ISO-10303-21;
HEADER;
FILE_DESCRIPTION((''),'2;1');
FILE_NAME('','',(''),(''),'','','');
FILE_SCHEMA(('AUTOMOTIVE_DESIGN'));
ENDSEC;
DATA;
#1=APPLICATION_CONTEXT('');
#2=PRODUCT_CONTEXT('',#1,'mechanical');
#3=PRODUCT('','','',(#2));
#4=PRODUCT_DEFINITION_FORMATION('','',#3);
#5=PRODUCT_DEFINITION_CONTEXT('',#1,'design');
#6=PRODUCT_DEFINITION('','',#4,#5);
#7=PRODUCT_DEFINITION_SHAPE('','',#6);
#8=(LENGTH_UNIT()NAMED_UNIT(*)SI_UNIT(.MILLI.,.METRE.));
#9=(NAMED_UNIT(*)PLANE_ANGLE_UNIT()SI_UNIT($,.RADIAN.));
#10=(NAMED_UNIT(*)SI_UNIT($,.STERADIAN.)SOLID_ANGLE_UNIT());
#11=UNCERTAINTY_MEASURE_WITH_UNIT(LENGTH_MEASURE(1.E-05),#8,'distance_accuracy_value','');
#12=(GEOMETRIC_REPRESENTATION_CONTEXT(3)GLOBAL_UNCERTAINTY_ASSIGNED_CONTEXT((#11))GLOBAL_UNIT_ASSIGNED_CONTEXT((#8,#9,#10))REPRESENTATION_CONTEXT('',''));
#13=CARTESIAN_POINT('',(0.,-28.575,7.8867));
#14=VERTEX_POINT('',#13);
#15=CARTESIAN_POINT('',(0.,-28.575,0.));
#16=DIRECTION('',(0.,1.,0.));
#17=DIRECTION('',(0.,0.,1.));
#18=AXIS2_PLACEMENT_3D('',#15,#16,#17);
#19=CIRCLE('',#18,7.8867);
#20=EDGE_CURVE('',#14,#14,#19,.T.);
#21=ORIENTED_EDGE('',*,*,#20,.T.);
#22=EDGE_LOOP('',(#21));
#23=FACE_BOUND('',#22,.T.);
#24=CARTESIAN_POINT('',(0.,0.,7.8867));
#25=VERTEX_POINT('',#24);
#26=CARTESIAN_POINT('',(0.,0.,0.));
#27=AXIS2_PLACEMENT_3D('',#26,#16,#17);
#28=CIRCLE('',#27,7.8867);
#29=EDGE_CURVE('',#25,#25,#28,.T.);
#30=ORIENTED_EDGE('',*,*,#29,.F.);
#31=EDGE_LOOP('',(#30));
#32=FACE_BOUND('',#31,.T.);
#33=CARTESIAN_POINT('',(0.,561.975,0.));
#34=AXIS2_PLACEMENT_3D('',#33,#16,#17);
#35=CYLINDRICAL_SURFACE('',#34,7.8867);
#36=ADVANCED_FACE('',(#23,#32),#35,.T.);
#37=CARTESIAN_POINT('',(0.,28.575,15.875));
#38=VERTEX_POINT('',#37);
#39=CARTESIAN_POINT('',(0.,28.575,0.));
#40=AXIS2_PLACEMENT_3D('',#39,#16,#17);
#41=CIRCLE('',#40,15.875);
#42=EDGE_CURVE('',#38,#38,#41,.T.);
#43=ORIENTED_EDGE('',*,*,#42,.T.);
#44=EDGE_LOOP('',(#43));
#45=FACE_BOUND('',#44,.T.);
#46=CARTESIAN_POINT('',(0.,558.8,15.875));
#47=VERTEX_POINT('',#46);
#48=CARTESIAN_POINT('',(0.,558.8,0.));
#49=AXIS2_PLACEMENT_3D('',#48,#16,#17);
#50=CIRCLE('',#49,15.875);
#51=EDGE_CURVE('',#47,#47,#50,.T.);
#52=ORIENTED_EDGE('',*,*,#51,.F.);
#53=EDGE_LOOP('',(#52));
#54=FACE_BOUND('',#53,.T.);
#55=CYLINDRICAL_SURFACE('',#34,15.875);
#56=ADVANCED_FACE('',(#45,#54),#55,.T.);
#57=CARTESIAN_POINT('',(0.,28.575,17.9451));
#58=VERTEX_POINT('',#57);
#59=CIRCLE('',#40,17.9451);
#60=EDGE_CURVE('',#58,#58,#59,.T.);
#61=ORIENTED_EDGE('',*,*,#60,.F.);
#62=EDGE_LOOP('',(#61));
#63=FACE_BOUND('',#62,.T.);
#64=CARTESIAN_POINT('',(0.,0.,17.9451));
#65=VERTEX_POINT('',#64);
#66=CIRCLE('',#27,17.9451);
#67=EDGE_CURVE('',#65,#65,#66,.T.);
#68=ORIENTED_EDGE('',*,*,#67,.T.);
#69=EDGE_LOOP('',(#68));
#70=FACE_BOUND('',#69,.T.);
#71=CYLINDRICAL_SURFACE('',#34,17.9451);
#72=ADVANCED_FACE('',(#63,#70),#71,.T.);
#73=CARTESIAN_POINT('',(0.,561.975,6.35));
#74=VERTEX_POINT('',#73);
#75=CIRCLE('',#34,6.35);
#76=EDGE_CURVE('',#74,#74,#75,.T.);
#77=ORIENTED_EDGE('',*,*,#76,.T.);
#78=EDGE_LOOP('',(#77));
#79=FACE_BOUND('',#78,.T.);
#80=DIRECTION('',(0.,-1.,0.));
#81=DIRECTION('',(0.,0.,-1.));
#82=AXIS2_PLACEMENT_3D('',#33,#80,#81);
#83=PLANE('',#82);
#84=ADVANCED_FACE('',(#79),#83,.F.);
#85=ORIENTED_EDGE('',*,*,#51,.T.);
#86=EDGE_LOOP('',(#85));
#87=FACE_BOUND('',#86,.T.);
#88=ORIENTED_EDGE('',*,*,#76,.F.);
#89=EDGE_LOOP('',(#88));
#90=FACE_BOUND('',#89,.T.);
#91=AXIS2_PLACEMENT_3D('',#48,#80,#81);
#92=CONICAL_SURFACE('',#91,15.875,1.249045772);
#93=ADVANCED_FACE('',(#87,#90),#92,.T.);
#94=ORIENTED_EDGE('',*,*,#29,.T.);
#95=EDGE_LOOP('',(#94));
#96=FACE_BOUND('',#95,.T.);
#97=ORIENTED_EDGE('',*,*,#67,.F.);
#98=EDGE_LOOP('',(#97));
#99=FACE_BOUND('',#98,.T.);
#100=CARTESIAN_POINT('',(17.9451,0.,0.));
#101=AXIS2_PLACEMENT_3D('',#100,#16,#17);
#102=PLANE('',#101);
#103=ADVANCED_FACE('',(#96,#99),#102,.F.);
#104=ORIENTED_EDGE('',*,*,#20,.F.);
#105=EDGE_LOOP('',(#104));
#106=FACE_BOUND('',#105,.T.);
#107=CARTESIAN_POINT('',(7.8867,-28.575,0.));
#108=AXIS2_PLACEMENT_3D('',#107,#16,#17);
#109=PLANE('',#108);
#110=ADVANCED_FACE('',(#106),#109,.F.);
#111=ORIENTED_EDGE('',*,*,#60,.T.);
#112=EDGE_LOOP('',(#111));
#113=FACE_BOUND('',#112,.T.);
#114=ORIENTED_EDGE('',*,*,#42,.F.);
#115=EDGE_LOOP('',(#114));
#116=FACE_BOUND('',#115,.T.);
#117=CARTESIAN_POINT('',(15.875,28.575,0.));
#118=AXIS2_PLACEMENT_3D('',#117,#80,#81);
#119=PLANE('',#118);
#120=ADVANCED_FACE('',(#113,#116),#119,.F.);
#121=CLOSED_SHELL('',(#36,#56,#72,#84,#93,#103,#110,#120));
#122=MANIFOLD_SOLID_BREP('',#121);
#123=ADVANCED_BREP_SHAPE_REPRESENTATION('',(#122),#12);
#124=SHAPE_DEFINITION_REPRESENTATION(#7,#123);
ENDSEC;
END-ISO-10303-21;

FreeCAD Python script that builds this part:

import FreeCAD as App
import Part
import Sketcher

V = App.Vector
Q = App.Units.Quantity


def add_polygon(sketch, points):
    """Adds a closed chain of lines whose ends are joined by coincident constraints."""
    first, n = sketch.GeometryCount, len(points)
    for a, b in zip(points, points[1:] + points[:1]):
        sketch.addGeometry(Part.LineSegment(App.Vector(*a, 0), App.Vector(*b, 0)), False)
    for i in range(n):
        sketch.addConstraint(Sketcher.Constraint("Coincident", first + i, 2, first + (i + 1) % n, 1))

doc = App.newDocument("Part")
body = doc.addObject("PartDesign::Body", "Body")

# Sketch on XY plane
sketch1 = body.newObject("Sketcher::SketchObject", "Sketch")
sketch1.AttachmentSupport = (doc.getObject("XY_Plane"), [""])
sketch1.MapMode = "FlatFace"
add_polygon(sketch1, [(6.35, 561.975), (0, 561.975), (0, -28.575), (7.8867, -28.575), (7.8867, 0), (17.9451, 0), (17.9451, 28.575), (15.875, 28.575), (15.875, 558.8)])  # lines 0-8
sketch1.addConstraint(Sketcher.Constraint("Horizontal", 0))
sketch1.addConstraint(Sketcher.Constraint("Vertical", 1))
sketch1.addConstraint(Sketcher.Constraint("Horizontal", 2))
sketch1.addConstraint(Sketcher.Constraint("Vertical", 3))
sketch1.addConstraint(Sketcher.Constraint("Horizontal", 4))
sketch1.addConstraint(Sketcher.Constraint("Vertical", 5))
sketch1.addConstraint(Sketcher.Constraint("Horizontal", 6))
sketch1.addConstraint(Sketcher.Constraint("Vertical", 7))
sketch1.addConstraint(Sketcher.Constraint("PointOnObject", 0, 2, -2))
sketch1.addConstraint(Sketcher.Constraint("PointOnObject", 3, 2, -1))
sketch1.addConstraint(Sketcher.Constraint("Equal", 3, 5))
sketch1.addConstraint(Sketcher.Constraint("DistanceY", -1, 1, 7, 2, Q("22 in")))
sketch1.addConstraint(Sketcher.Constraint("DistanceY", 5, 2, 0, 2, Q("21 in")))
sketch1.addConstraint(Sketcher.Constraint("DistanceX", 0, 2, 0, 1, Q("0.25 in")))
sketch1.addConstraint(Sketcher.Constraint("DistanceY", 1, 2, 1, 1, Q("23.25 in")))
sketch1.addConstraint(Sketcher.Constraint("DistanceX", 4, 1, 4, 2, Q("0.396 in")))
sketch1.addConstraint(Sketcher.Constraint("DistanceX", 2, 1, 2, 2, Q("0.3105 in")))
sketch1.addConstraint(Sketcher.Constraint("DistanceX", 6, 2, 6, 1, Q("0.0815 in")))
revolution = body.newObject("PartDesign::Revolution", "Revolution")
revolution.Profile = sketch1
revolution.ReferenceAxis = (sketch1, ["V_Axis"])
revolution.Angle = 360

doc.recompute()
